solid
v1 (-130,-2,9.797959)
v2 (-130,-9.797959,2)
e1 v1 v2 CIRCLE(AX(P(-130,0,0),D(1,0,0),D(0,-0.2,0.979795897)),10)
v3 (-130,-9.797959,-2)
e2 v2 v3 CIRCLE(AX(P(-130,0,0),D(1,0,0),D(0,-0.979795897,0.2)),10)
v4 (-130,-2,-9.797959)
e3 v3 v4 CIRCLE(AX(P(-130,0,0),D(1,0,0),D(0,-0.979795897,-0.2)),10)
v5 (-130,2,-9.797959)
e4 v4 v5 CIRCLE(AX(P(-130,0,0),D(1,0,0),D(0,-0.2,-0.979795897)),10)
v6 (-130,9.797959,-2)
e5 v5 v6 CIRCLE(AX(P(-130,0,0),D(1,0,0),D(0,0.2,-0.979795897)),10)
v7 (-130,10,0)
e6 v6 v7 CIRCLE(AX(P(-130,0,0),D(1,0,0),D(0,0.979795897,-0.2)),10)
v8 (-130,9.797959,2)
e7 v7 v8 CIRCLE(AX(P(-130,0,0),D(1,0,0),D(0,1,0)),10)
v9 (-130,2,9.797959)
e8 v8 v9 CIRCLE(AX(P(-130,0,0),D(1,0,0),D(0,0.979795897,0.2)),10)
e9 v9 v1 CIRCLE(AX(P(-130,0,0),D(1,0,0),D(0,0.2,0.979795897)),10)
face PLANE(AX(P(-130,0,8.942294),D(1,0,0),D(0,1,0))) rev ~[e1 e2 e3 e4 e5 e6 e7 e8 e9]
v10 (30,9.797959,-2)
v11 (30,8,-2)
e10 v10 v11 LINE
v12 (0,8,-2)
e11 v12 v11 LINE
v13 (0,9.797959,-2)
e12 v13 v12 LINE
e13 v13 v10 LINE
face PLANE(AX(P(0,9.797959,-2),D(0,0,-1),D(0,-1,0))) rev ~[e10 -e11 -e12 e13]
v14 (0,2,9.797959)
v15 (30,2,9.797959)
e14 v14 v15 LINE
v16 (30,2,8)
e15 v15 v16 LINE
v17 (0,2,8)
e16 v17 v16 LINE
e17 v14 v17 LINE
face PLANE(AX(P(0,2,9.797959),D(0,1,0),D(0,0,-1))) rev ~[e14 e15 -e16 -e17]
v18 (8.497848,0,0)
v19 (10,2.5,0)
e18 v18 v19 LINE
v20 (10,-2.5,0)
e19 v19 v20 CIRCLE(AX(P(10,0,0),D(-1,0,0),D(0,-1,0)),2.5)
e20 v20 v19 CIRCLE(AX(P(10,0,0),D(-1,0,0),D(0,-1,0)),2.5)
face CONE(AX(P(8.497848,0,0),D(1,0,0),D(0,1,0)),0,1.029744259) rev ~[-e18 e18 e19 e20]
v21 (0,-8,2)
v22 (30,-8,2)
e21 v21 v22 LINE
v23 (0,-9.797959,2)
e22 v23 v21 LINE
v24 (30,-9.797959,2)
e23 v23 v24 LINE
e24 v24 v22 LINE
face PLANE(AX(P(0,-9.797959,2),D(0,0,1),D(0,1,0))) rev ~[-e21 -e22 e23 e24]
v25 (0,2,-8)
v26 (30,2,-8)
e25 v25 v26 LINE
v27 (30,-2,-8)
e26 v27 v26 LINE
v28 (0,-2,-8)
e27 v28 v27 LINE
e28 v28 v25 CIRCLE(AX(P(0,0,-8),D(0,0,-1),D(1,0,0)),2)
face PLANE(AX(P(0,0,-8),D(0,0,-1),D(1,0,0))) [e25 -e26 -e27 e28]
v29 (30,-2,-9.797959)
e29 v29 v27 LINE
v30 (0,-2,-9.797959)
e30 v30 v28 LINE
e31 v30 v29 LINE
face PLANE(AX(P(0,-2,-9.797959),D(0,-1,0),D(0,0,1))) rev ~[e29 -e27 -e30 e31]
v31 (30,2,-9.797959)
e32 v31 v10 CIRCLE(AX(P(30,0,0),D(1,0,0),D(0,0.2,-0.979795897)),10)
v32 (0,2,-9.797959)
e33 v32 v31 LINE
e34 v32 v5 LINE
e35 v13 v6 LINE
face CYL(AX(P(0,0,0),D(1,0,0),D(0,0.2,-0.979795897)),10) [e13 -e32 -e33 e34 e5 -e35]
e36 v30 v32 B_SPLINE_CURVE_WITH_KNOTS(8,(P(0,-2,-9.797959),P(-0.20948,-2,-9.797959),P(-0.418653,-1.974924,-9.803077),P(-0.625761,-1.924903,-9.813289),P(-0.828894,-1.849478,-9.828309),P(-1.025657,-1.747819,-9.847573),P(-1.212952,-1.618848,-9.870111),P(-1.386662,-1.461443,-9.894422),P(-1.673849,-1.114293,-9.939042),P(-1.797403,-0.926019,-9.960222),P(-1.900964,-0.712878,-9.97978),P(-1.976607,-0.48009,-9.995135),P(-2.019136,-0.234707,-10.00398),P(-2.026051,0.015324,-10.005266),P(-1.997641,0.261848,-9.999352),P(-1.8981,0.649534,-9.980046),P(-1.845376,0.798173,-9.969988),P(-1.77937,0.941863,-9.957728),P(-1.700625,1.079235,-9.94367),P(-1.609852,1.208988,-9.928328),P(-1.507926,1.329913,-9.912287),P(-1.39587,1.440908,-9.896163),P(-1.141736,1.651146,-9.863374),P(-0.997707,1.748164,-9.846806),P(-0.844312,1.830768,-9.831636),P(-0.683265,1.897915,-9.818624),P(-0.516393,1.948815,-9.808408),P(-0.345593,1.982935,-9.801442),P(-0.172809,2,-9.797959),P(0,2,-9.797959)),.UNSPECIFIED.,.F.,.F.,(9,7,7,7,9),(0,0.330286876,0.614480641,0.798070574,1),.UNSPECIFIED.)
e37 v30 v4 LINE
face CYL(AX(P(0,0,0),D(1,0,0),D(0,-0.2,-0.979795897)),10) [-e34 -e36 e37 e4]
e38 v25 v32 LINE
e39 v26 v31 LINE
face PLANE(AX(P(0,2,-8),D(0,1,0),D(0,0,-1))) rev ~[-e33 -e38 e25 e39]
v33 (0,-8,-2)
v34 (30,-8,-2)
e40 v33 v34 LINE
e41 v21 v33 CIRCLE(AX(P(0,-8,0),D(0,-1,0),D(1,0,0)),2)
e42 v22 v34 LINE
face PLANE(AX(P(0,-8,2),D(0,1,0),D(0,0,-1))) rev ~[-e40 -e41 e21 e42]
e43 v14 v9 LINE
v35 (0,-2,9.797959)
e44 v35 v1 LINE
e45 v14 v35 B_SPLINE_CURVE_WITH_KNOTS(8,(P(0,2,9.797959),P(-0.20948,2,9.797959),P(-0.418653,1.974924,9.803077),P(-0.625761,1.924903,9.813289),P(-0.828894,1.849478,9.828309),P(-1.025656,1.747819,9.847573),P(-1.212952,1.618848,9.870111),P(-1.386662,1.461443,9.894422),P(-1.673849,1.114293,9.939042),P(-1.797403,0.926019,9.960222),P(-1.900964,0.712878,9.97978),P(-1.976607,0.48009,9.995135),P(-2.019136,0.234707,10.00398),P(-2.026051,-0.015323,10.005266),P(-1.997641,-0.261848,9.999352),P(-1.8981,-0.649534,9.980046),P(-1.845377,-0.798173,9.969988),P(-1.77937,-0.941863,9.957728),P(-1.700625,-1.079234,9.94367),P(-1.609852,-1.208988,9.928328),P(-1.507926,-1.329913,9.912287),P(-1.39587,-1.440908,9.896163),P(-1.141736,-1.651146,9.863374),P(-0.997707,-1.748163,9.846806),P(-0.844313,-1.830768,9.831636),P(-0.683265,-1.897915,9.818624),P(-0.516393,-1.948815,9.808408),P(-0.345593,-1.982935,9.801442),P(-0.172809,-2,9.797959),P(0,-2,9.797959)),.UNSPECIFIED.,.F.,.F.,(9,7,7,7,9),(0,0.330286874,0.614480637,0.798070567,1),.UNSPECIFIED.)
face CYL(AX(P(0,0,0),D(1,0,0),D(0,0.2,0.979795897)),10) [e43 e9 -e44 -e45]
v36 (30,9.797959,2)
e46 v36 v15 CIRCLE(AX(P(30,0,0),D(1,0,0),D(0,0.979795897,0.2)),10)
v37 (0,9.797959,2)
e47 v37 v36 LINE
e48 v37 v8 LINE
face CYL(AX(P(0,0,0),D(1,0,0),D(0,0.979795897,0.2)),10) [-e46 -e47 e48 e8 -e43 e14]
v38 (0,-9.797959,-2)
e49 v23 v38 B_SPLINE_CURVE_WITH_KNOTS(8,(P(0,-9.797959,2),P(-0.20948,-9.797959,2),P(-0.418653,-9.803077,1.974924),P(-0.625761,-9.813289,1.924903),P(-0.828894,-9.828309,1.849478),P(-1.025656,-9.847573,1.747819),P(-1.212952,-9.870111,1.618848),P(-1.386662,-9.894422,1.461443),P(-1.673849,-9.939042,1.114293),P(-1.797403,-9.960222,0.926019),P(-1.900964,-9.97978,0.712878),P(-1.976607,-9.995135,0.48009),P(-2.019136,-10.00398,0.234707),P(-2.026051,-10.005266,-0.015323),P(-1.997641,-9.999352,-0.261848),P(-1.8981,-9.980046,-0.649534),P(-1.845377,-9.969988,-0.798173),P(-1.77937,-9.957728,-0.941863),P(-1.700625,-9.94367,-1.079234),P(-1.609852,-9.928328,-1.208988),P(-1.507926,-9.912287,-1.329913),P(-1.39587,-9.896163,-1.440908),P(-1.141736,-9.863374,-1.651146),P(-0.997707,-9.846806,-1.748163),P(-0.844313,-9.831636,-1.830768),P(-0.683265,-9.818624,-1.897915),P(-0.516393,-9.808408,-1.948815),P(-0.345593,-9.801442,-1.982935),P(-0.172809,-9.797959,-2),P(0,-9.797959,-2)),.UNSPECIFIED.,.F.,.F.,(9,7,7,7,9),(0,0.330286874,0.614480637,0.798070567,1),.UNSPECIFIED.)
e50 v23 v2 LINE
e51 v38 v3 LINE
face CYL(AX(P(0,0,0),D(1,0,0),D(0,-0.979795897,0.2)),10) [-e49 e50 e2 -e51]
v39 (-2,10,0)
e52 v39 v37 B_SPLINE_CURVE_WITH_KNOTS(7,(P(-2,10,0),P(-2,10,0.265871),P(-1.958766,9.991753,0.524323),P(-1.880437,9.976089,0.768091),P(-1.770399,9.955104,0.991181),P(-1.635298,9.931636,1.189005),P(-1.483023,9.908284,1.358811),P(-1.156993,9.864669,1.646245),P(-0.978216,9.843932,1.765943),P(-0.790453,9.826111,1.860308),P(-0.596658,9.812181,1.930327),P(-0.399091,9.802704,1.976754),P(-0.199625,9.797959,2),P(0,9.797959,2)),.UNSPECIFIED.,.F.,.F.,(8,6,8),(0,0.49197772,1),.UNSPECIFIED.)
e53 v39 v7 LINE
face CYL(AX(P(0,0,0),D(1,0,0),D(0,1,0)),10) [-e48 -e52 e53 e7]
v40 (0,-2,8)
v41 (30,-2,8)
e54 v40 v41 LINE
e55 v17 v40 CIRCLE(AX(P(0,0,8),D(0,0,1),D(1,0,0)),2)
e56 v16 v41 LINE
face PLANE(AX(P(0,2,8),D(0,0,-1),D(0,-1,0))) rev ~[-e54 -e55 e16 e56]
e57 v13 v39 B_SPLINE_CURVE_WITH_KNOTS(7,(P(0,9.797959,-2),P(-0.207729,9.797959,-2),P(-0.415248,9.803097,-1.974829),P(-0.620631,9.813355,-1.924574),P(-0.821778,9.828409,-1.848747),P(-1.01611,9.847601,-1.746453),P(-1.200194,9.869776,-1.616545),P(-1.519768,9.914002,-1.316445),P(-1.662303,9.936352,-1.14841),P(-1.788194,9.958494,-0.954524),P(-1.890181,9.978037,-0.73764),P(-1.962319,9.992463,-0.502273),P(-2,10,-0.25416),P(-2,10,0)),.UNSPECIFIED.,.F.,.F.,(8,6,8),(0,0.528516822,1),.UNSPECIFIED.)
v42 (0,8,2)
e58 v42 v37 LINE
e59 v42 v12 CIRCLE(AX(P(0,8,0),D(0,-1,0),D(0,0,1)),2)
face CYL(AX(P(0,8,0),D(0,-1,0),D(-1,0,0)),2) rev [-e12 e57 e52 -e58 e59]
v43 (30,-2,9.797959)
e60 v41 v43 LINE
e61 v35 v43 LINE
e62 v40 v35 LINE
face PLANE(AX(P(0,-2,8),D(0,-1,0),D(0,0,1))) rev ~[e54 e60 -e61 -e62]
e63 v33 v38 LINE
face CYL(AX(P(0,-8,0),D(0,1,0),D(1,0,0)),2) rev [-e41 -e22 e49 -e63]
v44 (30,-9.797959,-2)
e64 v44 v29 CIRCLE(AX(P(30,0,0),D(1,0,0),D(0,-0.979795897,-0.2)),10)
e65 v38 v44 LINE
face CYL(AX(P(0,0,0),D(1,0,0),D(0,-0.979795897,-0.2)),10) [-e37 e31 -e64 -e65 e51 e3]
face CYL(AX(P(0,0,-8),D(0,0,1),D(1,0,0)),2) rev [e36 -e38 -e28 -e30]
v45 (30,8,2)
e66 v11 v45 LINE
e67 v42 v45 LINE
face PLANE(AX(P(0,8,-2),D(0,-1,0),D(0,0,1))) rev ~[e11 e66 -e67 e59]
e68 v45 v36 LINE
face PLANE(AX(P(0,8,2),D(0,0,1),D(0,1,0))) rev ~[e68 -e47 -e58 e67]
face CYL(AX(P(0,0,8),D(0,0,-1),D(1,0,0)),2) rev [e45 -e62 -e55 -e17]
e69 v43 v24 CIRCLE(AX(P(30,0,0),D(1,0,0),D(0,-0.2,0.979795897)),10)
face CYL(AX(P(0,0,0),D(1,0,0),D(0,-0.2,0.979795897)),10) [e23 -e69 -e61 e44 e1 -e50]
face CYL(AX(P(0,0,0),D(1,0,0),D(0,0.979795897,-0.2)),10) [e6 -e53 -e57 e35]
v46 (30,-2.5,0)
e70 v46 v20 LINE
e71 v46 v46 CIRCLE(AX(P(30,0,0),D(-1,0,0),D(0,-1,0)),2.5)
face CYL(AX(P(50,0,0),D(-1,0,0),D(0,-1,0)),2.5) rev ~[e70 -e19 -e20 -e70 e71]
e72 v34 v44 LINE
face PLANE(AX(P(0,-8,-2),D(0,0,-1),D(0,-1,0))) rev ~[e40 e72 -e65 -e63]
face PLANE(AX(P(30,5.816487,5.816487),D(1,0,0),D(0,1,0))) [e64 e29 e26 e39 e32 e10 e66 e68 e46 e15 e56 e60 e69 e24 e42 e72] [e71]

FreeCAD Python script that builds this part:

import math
import FreeCAD as App
import Part
import Sketcher

doc = App.newDocument("Part")
body = doc.addObject("PartDesign::Body", "Body")

sketch1 = body.newObject("Sketcher::SketchObject", "Sketch")
sketch1.AttachmentSupport = (doc.getObject("YZ_Plane"), [""])
sketch1.MapMode = "FlatFace"
sketch1.addGeometry(Part.ArcOfCircle(Part.Circle(App.Vector(0, 0, 0), App.Vector(0, 0, 1), 10), math.radians(12), math.radians(78)), False)
sketch1.addGeometry(Part.LineSegment(App.Vector(2, 9.8, 0), App.Vector(2, 8, 0)), False)
sketch1.addGeometry(Part.LineSegment(App.Vector(2, 8, 0), App.Vector(-2, 8, 0)), False)
sketch1.addGeometry(Part.LineSegment(App.Vector(-2, 8, 0), App.Vector(-2, 9.8, 0)), False)
sketch1.addGeometry(Part.ArcOfCircle(Part.Circle(App.Vector(0, 0, 0), App.Vector(0, 0, 1), 10), math.radians(102), math.radians(168)), False)
sketch1.addGeometry(Part.LineSegment(App.Vector(-9.8, 2, 0), App.Vector(-8, 2, 0)), False)
sketch1.addGeometry(Part.LineSegment(App.Vector(-8, 2, 0), App.Vector(-8, -2, 0)), False)
sketch1.addGeometry(Part.LineSegment(App.Vector(-8, -2, 0), App.Vector(-9.8, -2, 0)), False)
sketch1.addGeometry(Part.ArcOfCircle(Part.Circle(App.Vector(0, 0, 0), App.Vector(0, 0, 1), 10), math.radians(-168), math.radians(-102)), False)
sketch1.addGeometry(Part.LineSegment(App.Vector(-2, -9.8, 0), App.Vector(-2, -8, 0)), False)
sketch1.addGeometry(Part.LineSegment(App.Vector(-2, -8, 0), App.Vector(2, -8, 0)), False)
sketch1.addGeometry(Part.LineSegment(App.Vector(2, -8, 0), App.Vector(2, -9.8, 0)), False)
sketch1.addGeometry(Part.ArcOfCircle(Part.Circle(App.Vector(0, 0, 0), App.Vector(0, 0, 1), 10), math.radians(-78), math.radians(-12)), False)
sketch1.addGeometry(Part.LineSegment(App.Vector(9.8, -2, 0), App.Vector(8, -2, 0)), False)
sketch1.addGeometry(Part.LineSegment(App.Vector(8, -2, 0), App.Vector(8, 2, 0)), False)
sketch1.addGeometry(Part.LineSegment(App.Vector(8, 2, 0), App.Vector(9.8, 2, 0)), False)
sketch1.addConstraint(Sketcher.Constraint("Coincident", 0, 2, 1, 1))
sketch1.addConstraint(Sketcher.Constraint("Coincident", 1, 2, 2, 1))
sketch1.addConstraint(Sketcher.Constraint("Coincident", 2, 2, 3, 1))
sketch1.addConstraint(Sketcher.Constraint("Coincident", 3, 2, 4, 1))
sketch1.addConstraint(Sketcher.Constraint("Coincident", 4, 2, 5, 1))
sketch1.addConstraint(Sketcher.Constraint("Coincident", 5, 2, 6, 1))
sketch1.addConstraint(Sketcher.Constraint("Coincident", 6, 2, 7, 1))
sketch1.addConstraint(Sketcher.Constraint("Coincident", 7, 2, 8, 1))
sketch1.addConstraint(Sketcher.Constraint("Coincident", 8, 2, 9, 1))
sketch1.addConstraint(Sketcher.Constraint("Coincident", 9, 2, 10, 1))
sketch1.addConstraint(Sketcher.Constraint("Coincident", 10, 2, 11, 1))
sketch1.addConstraint(Sketcher.Constraint("Coincident", 11, 2, 12, 1))
sketch1.addConstraint(Sketcher.Constraint("Coincident", 12, 2, 13, 1))
sketch1.addConstraint(Sketcher.Constraint("Coincident", 13, 2, 14, 1))
sketch1.addConstraint(Sketcher.Constraint("Coincident", 14, 2, 15, 1))
sketch1.addConstraint(Sketcher.Constraint("Coincident", 15, 2, 0, 1))
sketch1.addConstraint(Sketcher.Constraint("Vertical", 1))
sketch1.addConstraint(Sketcher.Constraint("Horizontal", 2))
sketch1.addConstraint(Sketcher.Constraint("Vertical", 3))
sketch1.addConstraint(Sketcher.Constraint("Horizontal", 5))
sketch1.addConstraint(Sketcher.Constraint("Vertical", 6))
sketch1.addConstraint(Sketcher.Constraint("Horizontal", 7))
sketch1.addConstraint(Sketcher.Constraint("Vertical", 9))
sketch1.addConstraint(Sketcher.Constraint("Horizontal", 10))
sketch1.addConstraint(Sketcher.Constraint("Vertical", 11))
sketch1.addConstraint(Sketcher.Constraint("Horizontal", 13))
sketch1.addConstraint(Sketcher.Constraint("Vertical", 14))
sketch1.addConstraint(Sketcher.Constraint("Horizontal", 15))
sketch1.addConstraint(Sketcher.Constraint("Coincident", 0, 3, -1, 1))
sketch1.addConstraint(Sketcher.Constraint("Coincident", 4, 3, -1, 1))
sketch1.addConstraint(Sketcher.Constraint("Coincident", 8, 3, -1, 1))
sketch1.addConstraint(Sketcher.Constraint("Coincident", 12, 3, -1, 1))
sketch1.addConstraint(Sketcher.Constraint("Equal", 0, 4))
sketch1.addConstraint(Sketcher.Constraint("Equal", 4, 8))
sketch1.addConstraint(Sketcher.Constraint("Equal", 8, 12))
sketch1.addConstraint(Sketcher.Constraint("Symmetric", 1, 2, 9, 2, -1, 1))
sketch1.addConstraint(Sketcher.Constraint("Symmetric", 5, 2, 13, 2, -1, 1))
sketch1.addConstraint(Sketcher.Constraint("Horizontal", 0, 2, 3, 2))
sketch1.addConstraint(Sketcher.Constraint("Horizontal", 8, 2, 11, 2))
sketch1.addConstraint(Sketcher.Constraint("Horizontal", 7, 2, 12, 2))
sketch1.addConstraint(Sketcher.Constraint("Horizontal", 5, 2, 14, 2))
sketch1.addConstraint(Sketcher.Constraint("Equal", 15, 1))
sketch1.addConstraint(Sketcher.Constraint("Equal", 10, 6))
sketch1.addConstraint(Sketcher.Constraint("Radius", 0, 10.0))
sketch1.addConstraint(Sketcher.Constraint("DistanceX", 2, 2, 2, 1, 4.0))
sketch1.addConstraint(Sketcher.Constraint("DistanceY", -1, 1, 1, 2, 8.0))
pad1 = body.newObject("PartDesign::Pad", "Pad")
pad1.Profile = sketch1
pad1.Length = 30

sketch2 = body.newObject("Sketcher::SketchObject", "Sketch001")
sketch2.AttachmentSupport = (doc.getObject("YZ_Plane"), [""])
sketch2.MapMode = "FlatFace"
sketch2.addGeometry(Part.ArcOfCircle(Part.Circle(App.Vector(0, 0, 0), App.Vector(0, 0, 1), 10), math.radians(-102), math.radians(-78)), False)
sketch2.addGeometry(Part.ArcOfCircle(Part.Circle(App.Vector(0, 0, 0), App.Vector(0, 0, 1), 10), math.radians(-78), math.radians(-12)), False)
sketch2.addGeometry(Part.ArcOfCircle(Part.Circle(App.Vector(0, 0, 0), App.Vector(0, 0, 1), 10), math.radians(-11.54), math.radians(0)), False)
sketch2.addGeometry(Part.ArcOfCircle(Part.Circle(App.Vector(0, 0, 0), App.Vector(0, 0, 1), 10), math.radians(0), math.radians(11.54)), False)
sketch2.addGeometry(Part.ArcOfCircle(Part.Circle(App.Vector(0, 0, 0), App.Vector(0, 0, 1), 10), math.radians(12), math.radians(78)), False)
sketch2.addGeometry(Part.ArcOfCircle(Part.Circle(App.Vector(0, 0, 0), App.Vector(0, 0, 1), 10), math.radians(78), math.radians(102)), False)
sketch2.addGeometry(Part.ArcOfCircle(Part.Circle(App.Vector(0, 0, 0), App.Vector(0, 0, 1), 10), math.radians(102), math.radians(168)), False)
sketch2.addGeometry(Part.ArcOfCircle(Part.Circle(App.Vector(0, 0, 0), App.Vector(0, 0, 1), 10), math.radians(168), math.radians(192)), False)
sketch2.addGeometry(Part.ArcOfCircle(Part.Circle(App.Vector(0, 0, 0), App.Vector(0, 0, 1), 10), math.radians(-168), math.radians(-102)), False)
sketch2.addConstraint(Sketcher.Constraint("Tangent", 0, 2, 1, 1))
sketch2.addConstraint(Sketcher.Constraint("Tangent", 1, 2, 2, 1))
sketch2.addConstraint(Sketcher.Constraint("Tangent", 2, 2, 3, 1))
sketch2.addConstraint(Sketcher.Constraint("Tangent", 3, 2, 4, 1))
sketch2.addConstraint(Sketcher.Constraint("Tangent", 4, 2, 5, 1))
sketch2.addConstraint(Sketcher.Constraint("Tangent", 5, 2, 6, 1))
sketch2.addConstraint(Sketcher.Constraint("Tangent", 6, 2, 7, 1))
sketch2.addConstraint(Sketcher.Constraint("Tangent", 7, 2, 8, 1))
sketch2.addConstraint(Sketcher.Constraint("Tangent", 8, 2, 0, 1))
sketch2.addConstraint(Sketcher.Constraint("Coincident", 0, 3, -1, 1))
sketch2.addConstraint(Sketcher.Constraint("Coincident", 2, 3, -1, 1))
sketch2.addConstraint(Sketcher.Constraint("Coincident", 4, 3, -1, 1))
sketch2.addConstraint(Sketcher.Constraint("Coincident", 6, 3, -1, 1))
sketch2.addConstraint(Sketcher.Constraint("PointOnObject", 2, 2, -1))
sketch2.addConstraint(Sketcher.Constraint("Horizontal", 4, 2, 5, 2))
sketch2.addConstraint(Sketcher.Constraint("Horizontal", 3, 2, 6, 2))
sketch2.addConstraint(Sketcher.Constraint("Horizontal", 1, 2, 7, 2))
sketch2.addConstraint(Sketcher.Constraint("Horizontal", 0, 2, 8, 2))
sketch2.addConstraint(Sketcher.Constraint("Vertical", 1, 2, 3, 2))
sketch2.addConstraint(Sketcher.Constraint("Vertical", 0, 2, 4, 2))
sketch2.addConstraint(Sketcher.Constraint("Radius", 0, 10.0))
sketch2.addConstraint(Sketcher.Constraint("DistanceX", -1, 1, 0, 2, 2.0))
sketch2.addConstraint(Sketcher.Constraint("DistanceY", 1, 2, -1, 1, 2.0))
pad2 = body.newObject("PartDesign::Pad", "Pad001")
pad2.Profile = sketch2
pad2.Length = 130
pad2.Reversed = True

sketch3 = body.newObject("Sketcher::SketchObject", "Sketch002")
sketch3.AttachmentSupport = (doc.getObject("XY_Plane"), [""])
sketch3.MapMode = "FlatFace"
sketch3.AttachmentOffset = App.Placement(App.Vector(0, 0, 8), App.Rotation())
sketch3.addGeometry(Part.Circle(App.Vector(0, 0, 0), App.Vector(0, 0, 1), 2), False)
sketch3.addConstraint(Sketcher.Constraint("Coincident", 0, 3, -1, 1))
sketch3.addConstraint(Sketcher.Constraint("Diameter", 0, 4.0))
pocket1 = body.newObject("PartDesign::Pocket", "Pocket")
pocket1.Profile = sketch3
pocket1.Length = 25
pocket1.Reversed = True

sketch4 = body.newObject("Sketcher::SketchObject", "Sketch003")
sketch4.AttachmentSupport = (doc.getObject("XZ_Plane"), [""])
sketch4.MapMode = "FlatFace"
sketch4.AttachmentOffset = App.Placement(App.Vector(0, 0, 8), App.Rotation())
sketch4.addGeometry(Part.Circle(App.Vector(0, 0, 0), App.Vector(0, 0, 1), 2), False)
sketch4.addConstraint(Sketcher.Constraint("Coincident", 0, 3, -1, 1))
sketch4.addConstraint(Sketcher.Constraint("Diameter", 0, 4.0))
pocket2 = body.newObject("PartDesign::Pocket", "Pocket001")
pocket2.Profile = sketch4
pocket2.Length = 25
pocket2.Reversed = True

sketch5 = body.newObject("Sketcher::SketchObject", "Sketch004")
sketch5.AttachmentSupport = (doc.getObject("XY_Plane"), [""])
sketch5.MapMode = "FlatFace"
sketch5.AttachmentOffset = App.Placement(App.Vector(0, 0, -8), App.Rotation())
sketch5.addGeometry(Part.Circle(App.Vector(0, 0, 0), App.Vector(0, 0, 1), 2), False)
sketch5.addConstraint(Sketcher.Constraint("Coincident", 0, 3, -1, 1))
sketch5.addConstraint(Sketcher.Constraint("Diameter", 0, 4.0))
pocket3 = body.newObject("PartDesign::Pocket", "Pocket002")
pocket3.Profile = sketch5
pocket3.Length = 25

sketch6 = body.newObject("Sketcher::SketchObject", "Sketch005")
sketch6.AttachmentSupport = (doc.getObject("XZ_Plane"), [""])
sketch6.MapMode = "FlatFace"
sketch6.AttachmentOffset = App.Placement(App.Vector(0, 0, -8), App.Rotation())
sketch6.addGeometry(Part.Circle(App.Vector(0, 0, 0), App.Vector(0, 0, 1), 2), False)
sketch6.addConstraint(Sketcher.Constraint("Coincident", 0, 3, -1, 1))
sketch6.addConstraint(Sketcher.Constraint("Diameter", 0, 4.0))
pocket4 = body.newObject("PartDesign::Pocket", "Pocket003")
pocket4.Profile = sketch6
pocket4.Length = 25

sketch7 = body.newObject("Sketcher::SketchObject", "Sketch006")
sketch7.AttachmentSupport = (doc.getObject("YZ_Plane"), [""])
sketch7.MapMode = "FlatFace"
sketch7.AttachmentOffset = App.Placement(App.Vector(0, 0, 30), App.Rotation())
sketch7.addGeometry(Part.Circle(App.Vector(0, 0, 0), App.Vector(0, 0, 1), 2.5), False)
sketch7.addConstraint(Sketcher.Constraint("Coincident", 0, 3, -1, 1))
sketch7.addConstraint(Sketcher.Constraint("Diameter", 0, 5.0))
doc.recompute()
hole = body.newObject("PartDesign::Hole", "Hole")
hole.Profile = sketch7
hole.ThreadType = "None"
hole.Diameter = 5
hole.DepthType = "Dimension"
hole.Depth = 20
hole.DrillPoint = "Angled"
hole.DrillPointAngle = 118

doc.recompute()
